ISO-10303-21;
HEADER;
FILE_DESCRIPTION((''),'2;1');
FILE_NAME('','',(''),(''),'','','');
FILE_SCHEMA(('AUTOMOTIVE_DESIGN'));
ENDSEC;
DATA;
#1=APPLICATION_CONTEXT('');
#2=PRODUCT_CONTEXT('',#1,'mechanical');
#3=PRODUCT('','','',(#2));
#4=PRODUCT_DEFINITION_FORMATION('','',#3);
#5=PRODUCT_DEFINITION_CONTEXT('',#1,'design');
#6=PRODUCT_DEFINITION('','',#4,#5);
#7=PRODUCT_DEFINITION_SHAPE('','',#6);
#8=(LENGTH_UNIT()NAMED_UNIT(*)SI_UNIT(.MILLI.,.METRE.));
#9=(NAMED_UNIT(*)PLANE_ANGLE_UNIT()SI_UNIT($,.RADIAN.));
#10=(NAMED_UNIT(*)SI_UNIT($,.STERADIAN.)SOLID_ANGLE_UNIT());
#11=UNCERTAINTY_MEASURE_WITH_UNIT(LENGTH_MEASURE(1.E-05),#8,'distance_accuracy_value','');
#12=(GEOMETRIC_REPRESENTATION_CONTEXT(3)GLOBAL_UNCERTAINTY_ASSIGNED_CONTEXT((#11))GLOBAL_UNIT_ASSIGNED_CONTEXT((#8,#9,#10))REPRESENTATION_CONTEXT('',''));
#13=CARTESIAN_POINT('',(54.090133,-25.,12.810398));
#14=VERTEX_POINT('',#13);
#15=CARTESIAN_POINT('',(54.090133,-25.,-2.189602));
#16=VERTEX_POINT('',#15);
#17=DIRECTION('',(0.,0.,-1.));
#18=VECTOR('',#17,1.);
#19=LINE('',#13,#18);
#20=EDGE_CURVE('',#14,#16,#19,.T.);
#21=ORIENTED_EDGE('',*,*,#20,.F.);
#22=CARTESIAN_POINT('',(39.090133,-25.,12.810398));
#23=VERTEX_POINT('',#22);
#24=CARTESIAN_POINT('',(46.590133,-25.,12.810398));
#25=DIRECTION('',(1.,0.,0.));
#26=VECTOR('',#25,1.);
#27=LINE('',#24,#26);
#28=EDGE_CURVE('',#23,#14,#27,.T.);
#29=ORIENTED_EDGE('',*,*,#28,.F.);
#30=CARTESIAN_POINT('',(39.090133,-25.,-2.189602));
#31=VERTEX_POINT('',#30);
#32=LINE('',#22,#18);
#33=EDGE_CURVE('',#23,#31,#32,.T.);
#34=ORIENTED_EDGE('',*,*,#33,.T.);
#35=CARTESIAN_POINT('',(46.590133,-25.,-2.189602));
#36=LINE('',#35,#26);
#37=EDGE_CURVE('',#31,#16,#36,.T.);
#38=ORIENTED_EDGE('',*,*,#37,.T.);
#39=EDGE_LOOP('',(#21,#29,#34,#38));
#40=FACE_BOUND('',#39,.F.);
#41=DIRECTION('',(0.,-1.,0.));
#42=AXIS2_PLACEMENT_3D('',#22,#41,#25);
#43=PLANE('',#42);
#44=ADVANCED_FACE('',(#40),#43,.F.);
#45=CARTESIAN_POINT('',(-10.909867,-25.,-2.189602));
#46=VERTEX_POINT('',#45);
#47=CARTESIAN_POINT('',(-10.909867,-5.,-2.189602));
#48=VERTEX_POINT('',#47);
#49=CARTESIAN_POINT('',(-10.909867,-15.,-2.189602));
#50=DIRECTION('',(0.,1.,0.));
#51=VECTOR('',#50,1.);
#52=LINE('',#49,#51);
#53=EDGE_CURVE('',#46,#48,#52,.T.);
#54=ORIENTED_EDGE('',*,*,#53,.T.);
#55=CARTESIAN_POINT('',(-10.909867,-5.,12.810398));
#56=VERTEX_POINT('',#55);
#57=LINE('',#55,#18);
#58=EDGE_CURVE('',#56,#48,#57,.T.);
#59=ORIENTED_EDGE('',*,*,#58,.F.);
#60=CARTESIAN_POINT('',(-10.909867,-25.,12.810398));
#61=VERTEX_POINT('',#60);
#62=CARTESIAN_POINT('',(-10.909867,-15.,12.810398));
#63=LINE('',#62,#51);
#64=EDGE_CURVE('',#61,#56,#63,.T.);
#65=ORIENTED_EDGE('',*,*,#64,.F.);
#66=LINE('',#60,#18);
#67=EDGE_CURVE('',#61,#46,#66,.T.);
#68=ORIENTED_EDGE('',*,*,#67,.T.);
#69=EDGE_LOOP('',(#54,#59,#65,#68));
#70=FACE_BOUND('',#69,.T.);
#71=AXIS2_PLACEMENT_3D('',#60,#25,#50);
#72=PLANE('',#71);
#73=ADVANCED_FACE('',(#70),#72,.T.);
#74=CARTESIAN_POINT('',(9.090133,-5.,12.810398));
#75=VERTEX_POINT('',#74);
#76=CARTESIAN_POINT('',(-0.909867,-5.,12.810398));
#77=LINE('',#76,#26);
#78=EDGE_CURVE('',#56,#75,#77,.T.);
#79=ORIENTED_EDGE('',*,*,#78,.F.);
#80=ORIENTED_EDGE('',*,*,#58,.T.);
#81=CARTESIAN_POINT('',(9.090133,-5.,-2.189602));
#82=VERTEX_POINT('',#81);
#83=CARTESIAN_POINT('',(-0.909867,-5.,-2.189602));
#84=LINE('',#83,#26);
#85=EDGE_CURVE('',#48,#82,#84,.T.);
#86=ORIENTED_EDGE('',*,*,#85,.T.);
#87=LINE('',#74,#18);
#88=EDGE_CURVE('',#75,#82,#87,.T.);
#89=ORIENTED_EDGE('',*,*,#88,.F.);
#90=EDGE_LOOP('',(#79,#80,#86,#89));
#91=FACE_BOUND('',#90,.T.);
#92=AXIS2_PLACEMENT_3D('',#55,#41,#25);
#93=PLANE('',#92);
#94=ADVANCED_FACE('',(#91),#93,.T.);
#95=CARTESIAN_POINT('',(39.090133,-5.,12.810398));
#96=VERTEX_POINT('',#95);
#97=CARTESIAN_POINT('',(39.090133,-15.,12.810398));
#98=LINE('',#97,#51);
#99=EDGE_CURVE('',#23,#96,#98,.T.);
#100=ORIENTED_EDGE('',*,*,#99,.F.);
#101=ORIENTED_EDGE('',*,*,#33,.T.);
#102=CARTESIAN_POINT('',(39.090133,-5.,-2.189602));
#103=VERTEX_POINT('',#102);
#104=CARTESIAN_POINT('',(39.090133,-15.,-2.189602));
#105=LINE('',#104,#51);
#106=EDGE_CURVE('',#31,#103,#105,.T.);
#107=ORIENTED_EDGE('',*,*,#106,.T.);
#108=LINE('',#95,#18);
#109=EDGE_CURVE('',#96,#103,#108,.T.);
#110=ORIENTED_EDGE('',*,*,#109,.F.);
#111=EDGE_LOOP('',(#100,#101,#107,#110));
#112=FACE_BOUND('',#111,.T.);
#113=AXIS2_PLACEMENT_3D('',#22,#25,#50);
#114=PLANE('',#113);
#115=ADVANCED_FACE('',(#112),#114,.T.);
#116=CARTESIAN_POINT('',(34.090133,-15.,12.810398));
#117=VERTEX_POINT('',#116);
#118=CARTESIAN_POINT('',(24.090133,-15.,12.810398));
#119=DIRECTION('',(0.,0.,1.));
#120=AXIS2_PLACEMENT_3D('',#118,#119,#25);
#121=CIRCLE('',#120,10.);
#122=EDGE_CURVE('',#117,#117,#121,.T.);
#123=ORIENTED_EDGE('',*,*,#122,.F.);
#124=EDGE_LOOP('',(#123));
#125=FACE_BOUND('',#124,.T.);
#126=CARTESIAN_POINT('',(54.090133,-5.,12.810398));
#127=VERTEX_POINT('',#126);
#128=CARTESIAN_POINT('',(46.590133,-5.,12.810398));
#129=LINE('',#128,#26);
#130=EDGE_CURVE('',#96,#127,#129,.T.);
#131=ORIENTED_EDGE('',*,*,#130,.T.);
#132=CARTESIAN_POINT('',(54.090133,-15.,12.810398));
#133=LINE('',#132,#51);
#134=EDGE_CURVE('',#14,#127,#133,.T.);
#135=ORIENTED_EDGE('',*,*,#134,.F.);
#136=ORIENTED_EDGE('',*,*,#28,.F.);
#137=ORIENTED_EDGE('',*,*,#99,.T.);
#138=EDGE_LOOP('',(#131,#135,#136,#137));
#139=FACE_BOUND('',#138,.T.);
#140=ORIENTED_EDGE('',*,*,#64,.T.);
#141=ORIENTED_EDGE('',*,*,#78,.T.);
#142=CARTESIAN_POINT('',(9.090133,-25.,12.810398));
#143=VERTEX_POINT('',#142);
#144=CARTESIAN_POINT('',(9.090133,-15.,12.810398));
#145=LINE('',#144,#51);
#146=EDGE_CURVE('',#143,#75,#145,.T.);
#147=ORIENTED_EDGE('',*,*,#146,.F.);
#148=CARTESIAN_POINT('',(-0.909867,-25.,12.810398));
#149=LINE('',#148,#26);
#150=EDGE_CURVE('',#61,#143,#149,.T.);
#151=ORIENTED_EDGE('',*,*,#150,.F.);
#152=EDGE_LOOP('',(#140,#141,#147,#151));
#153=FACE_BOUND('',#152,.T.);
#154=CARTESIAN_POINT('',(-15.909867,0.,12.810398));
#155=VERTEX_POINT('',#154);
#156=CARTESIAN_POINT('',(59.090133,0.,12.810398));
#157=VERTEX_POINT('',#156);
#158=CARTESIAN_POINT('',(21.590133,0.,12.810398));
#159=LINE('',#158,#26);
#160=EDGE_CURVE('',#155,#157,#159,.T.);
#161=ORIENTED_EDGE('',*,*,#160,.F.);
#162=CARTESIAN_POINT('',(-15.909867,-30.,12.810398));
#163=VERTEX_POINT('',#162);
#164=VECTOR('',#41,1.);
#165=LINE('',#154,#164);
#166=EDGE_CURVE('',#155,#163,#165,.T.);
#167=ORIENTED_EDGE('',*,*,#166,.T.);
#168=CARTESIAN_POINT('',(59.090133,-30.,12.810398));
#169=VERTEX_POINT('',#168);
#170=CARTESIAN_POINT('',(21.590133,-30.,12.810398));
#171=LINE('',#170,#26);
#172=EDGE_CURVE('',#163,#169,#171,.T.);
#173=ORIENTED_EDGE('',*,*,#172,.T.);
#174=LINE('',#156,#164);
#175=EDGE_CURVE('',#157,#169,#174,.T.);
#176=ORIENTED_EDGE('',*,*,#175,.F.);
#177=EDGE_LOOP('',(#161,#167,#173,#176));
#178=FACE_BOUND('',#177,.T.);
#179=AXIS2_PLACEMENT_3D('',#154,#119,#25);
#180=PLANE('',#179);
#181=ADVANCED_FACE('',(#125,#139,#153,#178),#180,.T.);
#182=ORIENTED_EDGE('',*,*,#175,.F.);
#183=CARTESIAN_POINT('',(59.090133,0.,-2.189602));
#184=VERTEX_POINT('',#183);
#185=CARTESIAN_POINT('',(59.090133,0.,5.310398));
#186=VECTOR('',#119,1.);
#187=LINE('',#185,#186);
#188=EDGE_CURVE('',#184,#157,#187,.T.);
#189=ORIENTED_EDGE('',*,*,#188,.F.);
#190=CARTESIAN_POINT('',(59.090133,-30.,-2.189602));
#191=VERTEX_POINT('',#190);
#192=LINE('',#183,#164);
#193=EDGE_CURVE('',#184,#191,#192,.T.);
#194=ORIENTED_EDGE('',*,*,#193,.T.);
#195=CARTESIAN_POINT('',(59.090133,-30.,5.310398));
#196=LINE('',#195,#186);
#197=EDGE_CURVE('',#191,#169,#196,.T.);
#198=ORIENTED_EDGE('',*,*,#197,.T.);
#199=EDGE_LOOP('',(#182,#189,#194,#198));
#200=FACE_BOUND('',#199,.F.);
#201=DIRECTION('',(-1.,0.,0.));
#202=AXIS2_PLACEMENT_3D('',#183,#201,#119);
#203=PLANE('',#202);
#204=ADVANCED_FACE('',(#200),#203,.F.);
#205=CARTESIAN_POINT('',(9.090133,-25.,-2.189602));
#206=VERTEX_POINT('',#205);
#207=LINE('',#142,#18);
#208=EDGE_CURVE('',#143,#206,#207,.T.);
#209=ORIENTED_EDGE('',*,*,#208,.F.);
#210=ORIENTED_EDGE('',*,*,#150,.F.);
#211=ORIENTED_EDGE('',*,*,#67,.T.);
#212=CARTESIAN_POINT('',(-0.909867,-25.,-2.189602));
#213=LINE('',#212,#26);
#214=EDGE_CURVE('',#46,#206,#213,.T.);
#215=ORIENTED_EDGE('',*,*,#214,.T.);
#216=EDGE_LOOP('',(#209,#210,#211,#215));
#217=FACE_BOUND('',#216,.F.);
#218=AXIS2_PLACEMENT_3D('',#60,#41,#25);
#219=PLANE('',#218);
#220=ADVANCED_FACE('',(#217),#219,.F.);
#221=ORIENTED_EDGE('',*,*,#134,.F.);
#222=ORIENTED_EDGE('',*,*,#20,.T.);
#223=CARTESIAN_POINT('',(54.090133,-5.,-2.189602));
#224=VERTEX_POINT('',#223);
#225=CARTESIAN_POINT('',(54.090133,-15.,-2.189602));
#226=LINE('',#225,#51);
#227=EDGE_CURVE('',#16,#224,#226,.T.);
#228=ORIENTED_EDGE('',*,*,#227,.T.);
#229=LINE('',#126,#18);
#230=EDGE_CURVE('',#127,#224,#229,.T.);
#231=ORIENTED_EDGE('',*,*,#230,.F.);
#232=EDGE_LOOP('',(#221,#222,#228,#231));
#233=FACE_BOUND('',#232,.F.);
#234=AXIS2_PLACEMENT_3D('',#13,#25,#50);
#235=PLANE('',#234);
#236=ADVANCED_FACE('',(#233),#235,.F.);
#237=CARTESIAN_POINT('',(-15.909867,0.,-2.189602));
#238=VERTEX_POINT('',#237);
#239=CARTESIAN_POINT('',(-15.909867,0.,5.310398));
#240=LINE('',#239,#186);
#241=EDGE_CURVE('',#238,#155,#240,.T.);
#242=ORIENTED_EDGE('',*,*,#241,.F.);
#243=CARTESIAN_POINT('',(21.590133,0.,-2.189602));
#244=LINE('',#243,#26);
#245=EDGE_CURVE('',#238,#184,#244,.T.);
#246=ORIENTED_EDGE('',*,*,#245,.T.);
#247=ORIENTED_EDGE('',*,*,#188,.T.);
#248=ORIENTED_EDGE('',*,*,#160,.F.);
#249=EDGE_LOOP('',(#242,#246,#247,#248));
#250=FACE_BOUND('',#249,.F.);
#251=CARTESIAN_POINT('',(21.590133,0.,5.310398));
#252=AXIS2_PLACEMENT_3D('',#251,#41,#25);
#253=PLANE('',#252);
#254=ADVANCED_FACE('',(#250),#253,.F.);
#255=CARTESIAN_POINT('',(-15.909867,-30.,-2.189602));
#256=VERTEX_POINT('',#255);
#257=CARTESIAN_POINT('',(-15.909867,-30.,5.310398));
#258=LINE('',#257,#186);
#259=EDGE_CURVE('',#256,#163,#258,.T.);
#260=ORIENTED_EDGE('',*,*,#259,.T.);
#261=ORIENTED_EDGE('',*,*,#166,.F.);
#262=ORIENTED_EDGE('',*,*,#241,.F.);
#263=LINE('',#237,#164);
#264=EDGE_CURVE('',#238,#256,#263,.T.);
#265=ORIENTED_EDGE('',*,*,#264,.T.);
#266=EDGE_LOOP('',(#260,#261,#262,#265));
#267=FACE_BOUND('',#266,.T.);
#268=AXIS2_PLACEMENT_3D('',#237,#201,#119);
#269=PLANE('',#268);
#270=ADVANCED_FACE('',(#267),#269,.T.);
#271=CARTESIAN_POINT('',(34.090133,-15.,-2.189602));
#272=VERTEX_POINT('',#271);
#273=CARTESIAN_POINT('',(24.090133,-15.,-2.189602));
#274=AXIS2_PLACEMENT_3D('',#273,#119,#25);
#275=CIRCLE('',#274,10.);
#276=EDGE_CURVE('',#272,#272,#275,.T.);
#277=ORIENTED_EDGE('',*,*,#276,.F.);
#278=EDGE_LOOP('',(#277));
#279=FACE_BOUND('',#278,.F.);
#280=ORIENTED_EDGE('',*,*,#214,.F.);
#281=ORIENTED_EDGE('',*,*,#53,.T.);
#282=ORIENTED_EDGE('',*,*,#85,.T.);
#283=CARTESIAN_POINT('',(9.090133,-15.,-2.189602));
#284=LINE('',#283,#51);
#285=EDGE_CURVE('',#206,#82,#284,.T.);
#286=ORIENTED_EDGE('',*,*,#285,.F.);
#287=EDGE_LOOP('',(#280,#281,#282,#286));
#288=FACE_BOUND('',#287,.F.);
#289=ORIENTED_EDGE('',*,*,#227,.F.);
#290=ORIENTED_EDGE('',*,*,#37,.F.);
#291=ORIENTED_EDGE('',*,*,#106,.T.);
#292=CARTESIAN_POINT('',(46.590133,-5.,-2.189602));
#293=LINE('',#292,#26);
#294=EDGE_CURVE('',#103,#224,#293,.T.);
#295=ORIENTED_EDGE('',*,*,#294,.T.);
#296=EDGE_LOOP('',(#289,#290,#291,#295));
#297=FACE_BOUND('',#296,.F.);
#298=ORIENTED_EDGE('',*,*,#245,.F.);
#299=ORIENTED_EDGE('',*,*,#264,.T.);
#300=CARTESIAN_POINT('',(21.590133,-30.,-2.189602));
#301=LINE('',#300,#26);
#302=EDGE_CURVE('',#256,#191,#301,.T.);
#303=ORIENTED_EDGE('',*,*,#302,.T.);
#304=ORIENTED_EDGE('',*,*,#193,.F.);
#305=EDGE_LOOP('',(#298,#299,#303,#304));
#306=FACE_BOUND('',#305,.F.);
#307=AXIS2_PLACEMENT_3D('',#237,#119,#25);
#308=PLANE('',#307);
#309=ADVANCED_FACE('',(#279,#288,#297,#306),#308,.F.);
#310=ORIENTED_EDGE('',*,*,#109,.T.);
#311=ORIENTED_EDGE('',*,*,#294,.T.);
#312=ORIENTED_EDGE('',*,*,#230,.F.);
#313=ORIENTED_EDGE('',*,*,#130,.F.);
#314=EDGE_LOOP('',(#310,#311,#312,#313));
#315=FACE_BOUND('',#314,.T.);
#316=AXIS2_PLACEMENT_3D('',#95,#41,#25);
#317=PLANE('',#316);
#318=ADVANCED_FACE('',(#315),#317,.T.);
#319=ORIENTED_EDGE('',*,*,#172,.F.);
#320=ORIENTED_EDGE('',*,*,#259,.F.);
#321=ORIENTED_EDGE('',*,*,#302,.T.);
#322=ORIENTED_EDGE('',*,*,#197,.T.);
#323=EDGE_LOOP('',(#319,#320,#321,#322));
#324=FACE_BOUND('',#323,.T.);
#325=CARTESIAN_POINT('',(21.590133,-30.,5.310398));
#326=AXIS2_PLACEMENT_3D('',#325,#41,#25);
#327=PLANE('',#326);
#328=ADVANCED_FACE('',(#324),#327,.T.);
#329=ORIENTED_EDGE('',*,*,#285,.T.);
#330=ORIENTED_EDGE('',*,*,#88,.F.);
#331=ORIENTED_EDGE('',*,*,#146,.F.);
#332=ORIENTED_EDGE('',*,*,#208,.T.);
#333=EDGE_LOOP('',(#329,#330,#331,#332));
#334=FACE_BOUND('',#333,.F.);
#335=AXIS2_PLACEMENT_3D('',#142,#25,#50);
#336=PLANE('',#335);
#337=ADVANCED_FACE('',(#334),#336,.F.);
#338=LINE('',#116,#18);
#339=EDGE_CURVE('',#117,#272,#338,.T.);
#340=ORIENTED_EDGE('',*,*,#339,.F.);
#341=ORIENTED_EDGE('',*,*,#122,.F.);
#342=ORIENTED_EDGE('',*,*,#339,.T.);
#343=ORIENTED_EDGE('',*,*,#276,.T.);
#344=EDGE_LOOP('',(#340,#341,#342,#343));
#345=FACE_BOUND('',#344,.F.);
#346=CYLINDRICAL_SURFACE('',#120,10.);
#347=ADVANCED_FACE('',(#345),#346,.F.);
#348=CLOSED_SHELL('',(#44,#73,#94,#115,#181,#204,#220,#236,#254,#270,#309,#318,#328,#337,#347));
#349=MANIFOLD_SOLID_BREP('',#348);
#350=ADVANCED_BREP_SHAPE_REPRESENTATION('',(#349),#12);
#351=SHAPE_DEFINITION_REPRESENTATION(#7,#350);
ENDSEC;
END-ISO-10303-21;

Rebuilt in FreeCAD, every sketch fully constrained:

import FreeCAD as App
import Part
import Sketcher
from FreeCAD import Vector
Q = App.Units.Quantity


def add_polygon(sketch, points):
    """Adds a closed chain of lines whose ends are joined by coincident constraints."""
    first, n = sketch.GeometryCount, len(points)
    for a, b in zip(points, points[1:] + points[:1]):
        sketch.addGeometry(Part.LineSegment(App.Vector(*a, 0), App.Vector(*b, 0)), False)
    for i in range(n):
        sketch.addConstraint(Sketcher.Constraint("Coincident", first + i, 2, first + (i + 1) % n, 1))

doc = App.newDocument("Part")
params = doc.addObject("Spreadsheet::Sheet", "Params")
for row, (alias, value) in enumerate([
    ("sketch1_width", "75 mm"),
    ("sketch1_height", "15 mm"),
    ("pad1_length", "30 mm"),
    ("sketch2_width", "20 mm"),
    ("pocket1_length", "15 mm"),
    ("sketch3_diameter", "20 mm"),
    ("pocket2_length", "15 mm"),
    ("sketch4_width", "15 mm"),
    ("sketch4_height", "20 mm"),
    ("pocket3_length", "15 mm"),
], start=1):
    params.set(f"A{row}", alias)
    params.set(f"B{row}", "=" + value)
    params.setAlias(f"B{row}", alias)

body = doc.addObject("PartDesign::Body", "Body")

# Sketch on XZ plane
sketch1 = body.newObject("Sketcher::SketchObject", "Sketch")
sketch1.AttachmentSupport = (doc.getObject("XZ_Plane"), [""])
sketch1.MapMode = "FlatFace"
add_polygon(sketch1, [(-16, 13), (-16, -2), (59, -2), (59, 13)])  # lines 0-3
sketch1.addConstraint([
    Sketcher.Constraint("Vertical", 0),
    Sketcher.Constraint("Horizontal", 1),
    Sketcher.Constraint("Vertical", 2),
    Sketcher.Constraint("Horizontal", 3),
    Sketcher.Constraint("DistanceX", 1, 1, 1, 2, Q("75 mm")),
    Sketcher.Constraint("DistanceY", 0, 2, 0, 1, Q("15 mm")),
    Sketcher.Constraint("DistanceY", 0, 2, -1, 1, Q("2.189602 mm")),
    Sketcher.Constraint("DistanceX", 0, 2, -1, 1, Q("15.909867 mm")),
])
sketch1.setExpression("Constraints[8]", "Params.sketch1_width")
sketch1.setExpression("Constraints[9]", "Params.sketch1_height")
pad1 = body.newObject("PartDesign::Pad", "Pad")
pad1.Profile = sketch1
pad1.setExpression("Length", "Params.pad1_length")

# Sketch on XY plane
sketch2 = body.newObject("Sketcher::SketchObject", "Sketch001")
sketch2.AttachmentSupport = (doc.getObject("XY_Plane"), [""])
sketch2.MapMode = "FlatFace"
sketch2.AttachmentOffset = App.Placement(Vector(0, 0, 12.810398), App.Rotation())
add_polygon(sketch2, [(-11, -5), (-11, -25), (9, -25), (9, -5)])  # lines 0-3
sketch2.addConstraint([
    Sketcher.Constraint("Vertical", 0),
    Sketcher.Constraint("Horizontal", 1),
    Sketcher.Constraint("Vertical", 2),
    Sketcher.Constraint("Horizontal", 3),
    Sketcher.Constraint("Equal", 3, 0),
    Sketcher.Constraint("DistanceX", 1, 1, 1, 2, Q("20 mm")),
    Sketcher.Constraint("DistanceY", 0, 2, -1, 1, Q("25 mm")),
    Sketcher.Constraint("DistanceX", 0, 2, -1, 1, Q("10.909867 mm")),
])
sketch2.setExpression("Constraints[9]", "Params.sketch2_width")
pocket1 = body.newObject("PartDesign::Pocket", "Pocket")
pocket1.Profile = sketch2
pocket1.setExpression("Length", "Params.pocket1_length")

# Sketch on XY plane
sketch3 = body.newObject("Sketcher::SketchObject", "Sketch002")
sketch3.AttachmentSupport = (doc.getObject("XY_Plane"), [""])
sketch3.MapMode = "FlatFace"
sketch3.AttachmentOffset = App.Placement(Vector(0, 0, 12.810398), App.Rotation())
sketch3.addGeometry(Part.Circle(Vector(24, -15, 0), Vector(0, 0, 1), 10), False)
sketch3.addConstraint([
    Sketcher.Constraint("Diameter", 0, Q("20 mm")),
    Sketcher.Constraint("DistanceY", 0, 3, -1, 1, Q("15 mm")),
    Sketcher.Constraint("DistanceX", -1, 1, 0, 3, Q("24.090133 mm")),
])
sketch3.setExpression("Constraints[0]", "Params.sketch3_diameter")
pocket2 = body.newObject("PartDesign::Pocket", "Pocket001")
pocket2.Profile = sketch3
pocket2.setExpression("Length", "Params.pocket2_length")

# Sketch on XY plane
sketch4 = body.newObject("Sketcher::SketchObject", "Sketch003")
sketch4.AttachmentSupport = (doc.getObject("XY_Plane"), [""])
sketch4.MapMode = "FlatFace"
sketch4.AttachmentOffset = App.Placement(Vector(0, 0, 12.810398), App.Rotation())
add_polygon(sketch4, [(39, -5), (39, -25), (54, -25), (54, -5)])  # lines 0-3
sketch4.addConstraint([
    Sketcher.Constraint("Vertical", 0),
    Sketcher.Constraint("Horizontal", 1),
    Sketcher.Constraint("Vertical", 2),
    Sketcher.Constraint("Horizontal", 3),
    Sketcher.Constraint("DistanceX", 1, 1, 1, 2, Q("15 mm")),
    Sketcher.Constraint("DistanceY", 0, 2, 0, 1, Q("20 mm")),
    Sketcher.Constraint("DistanceY", 0, 2, -1, 1, Q("25 mm")),
    Sketcher.Constraint("DistanceX", -1, 1, 0, 2, Q("39.090133 mm")),
])
sketch4.setExpression("Constraints[8]", "Params.sketch4_width")
sketch4.setExpression("Constraints[9]", "Params.sketch4_height")
pocket3 = body.newObject("PartDesign::Pocket", "Pocket002")
pocket3.Profile = sketch4
pocket3.setExpression("Length", "Params.pocket3_length")

doc.recompute()
